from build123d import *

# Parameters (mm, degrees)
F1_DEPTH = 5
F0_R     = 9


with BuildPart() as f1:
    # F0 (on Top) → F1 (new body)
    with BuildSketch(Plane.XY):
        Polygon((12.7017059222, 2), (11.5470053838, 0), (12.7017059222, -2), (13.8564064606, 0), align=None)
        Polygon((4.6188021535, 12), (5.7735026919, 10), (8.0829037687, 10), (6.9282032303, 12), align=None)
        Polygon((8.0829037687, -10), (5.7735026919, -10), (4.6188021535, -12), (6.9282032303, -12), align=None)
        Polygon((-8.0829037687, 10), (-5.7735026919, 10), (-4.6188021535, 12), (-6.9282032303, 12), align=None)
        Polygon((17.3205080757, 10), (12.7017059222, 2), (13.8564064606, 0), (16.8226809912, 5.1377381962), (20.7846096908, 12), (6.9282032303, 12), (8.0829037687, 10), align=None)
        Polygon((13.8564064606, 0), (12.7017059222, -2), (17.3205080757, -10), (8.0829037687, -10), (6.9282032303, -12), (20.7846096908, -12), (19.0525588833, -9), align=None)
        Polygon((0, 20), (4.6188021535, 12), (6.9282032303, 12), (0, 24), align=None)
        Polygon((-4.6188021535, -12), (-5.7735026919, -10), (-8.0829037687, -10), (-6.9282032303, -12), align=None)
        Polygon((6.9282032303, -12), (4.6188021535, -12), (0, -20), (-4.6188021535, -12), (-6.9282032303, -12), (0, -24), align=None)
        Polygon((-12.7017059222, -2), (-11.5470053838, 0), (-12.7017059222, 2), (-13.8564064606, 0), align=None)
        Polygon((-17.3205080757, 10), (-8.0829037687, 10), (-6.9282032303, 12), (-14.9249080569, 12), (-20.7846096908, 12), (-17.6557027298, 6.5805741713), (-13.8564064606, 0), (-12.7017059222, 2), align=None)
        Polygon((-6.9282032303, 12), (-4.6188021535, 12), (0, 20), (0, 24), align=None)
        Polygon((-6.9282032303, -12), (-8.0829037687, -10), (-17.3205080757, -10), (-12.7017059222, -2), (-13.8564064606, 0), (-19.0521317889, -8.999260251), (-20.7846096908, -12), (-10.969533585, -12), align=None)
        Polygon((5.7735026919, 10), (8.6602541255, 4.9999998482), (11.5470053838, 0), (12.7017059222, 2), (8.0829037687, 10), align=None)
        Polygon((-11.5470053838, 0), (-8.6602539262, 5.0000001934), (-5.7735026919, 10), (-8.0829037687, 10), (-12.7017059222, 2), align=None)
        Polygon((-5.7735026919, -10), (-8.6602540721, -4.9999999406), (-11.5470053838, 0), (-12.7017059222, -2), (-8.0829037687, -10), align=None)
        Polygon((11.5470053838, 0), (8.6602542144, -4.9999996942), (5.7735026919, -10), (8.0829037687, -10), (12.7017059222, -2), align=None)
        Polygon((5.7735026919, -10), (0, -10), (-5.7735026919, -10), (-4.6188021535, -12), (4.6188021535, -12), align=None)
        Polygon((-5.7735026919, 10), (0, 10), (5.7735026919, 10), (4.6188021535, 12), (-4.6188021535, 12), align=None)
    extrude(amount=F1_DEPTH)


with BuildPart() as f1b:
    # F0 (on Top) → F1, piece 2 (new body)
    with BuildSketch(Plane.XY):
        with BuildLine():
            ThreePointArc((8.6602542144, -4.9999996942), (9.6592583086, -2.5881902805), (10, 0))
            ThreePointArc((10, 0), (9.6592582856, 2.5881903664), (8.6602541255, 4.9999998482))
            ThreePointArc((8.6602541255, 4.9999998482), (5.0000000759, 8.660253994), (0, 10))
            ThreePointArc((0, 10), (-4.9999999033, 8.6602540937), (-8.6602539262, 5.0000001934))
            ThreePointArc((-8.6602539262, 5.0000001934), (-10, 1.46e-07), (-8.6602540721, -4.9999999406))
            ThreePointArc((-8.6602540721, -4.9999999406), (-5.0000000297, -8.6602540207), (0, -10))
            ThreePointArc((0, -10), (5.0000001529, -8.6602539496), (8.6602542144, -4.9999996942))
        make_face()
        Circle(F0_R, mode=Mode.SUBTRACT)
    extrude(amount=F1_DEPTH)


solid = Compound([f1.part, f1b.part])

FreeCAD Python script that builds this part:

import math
import FreeCAD as App
import Part
import Sketcher

V = App.Vector
Q = App.Units.Quantity


def add_polygon(sketch, points):
    """Adds a closed chain of lines whose ends are joined by coincident constraints."""
    first, n = sketch.GeometryCount, len(points)
    for a, b in zip(points, points[1:] + points[:1]):
        sketch.addGeometry(Part.LineSegment(App.Vector(*a, 0), App.Vector(*b, 0)), False)
    for i in range(n):
        sketch.addConstraint(Sketcher.Constraint("Coincident", first + i, 2, first + (i + 1) % n, 1))

doc = App.newDocument("Part")
body = doc.addObject("PartDesign::Body", "Body")

sketch1 = body.newObject("Sketcher::SketchObject", "Sketch")
sketch1.AttachmentSupport = (doc.getObject("XY_Plane"), [""])
sketch1.MapMode = "FlatFace"
add_polygon(sketch1, [(-6.9, -12), (0, -24), (6.9, -12), (20.8, -12), (19.1, -9), (13.9, 0), (16.8, 5.1), (20.8, 12), (6.9, 12), (0, 24), (-6.9, 12), (-20.8, 12), (-17.7, 6.6), (-13.9, 0), (-19.1, -9), (-20.8, -12)])
add_polygon(sketch1, [(12.7, -2), (17.3, -10), (8.1, -10)])
add_polygon(sketch1, [(4.6, -12), (0, -20), (-4.6, -12)])
add_polygon(sketch1, [(-5.8, -10), (-8.7, -5), (-11.5, 0), (-8.7, 5), (-5.8, 10), (5.8, 10), (8.7, 5), (11.5, 0), (8.7, -5), (5.8, -10)])
add_polygon(sketch1, [(-4.6, 12), (0, 20), (4.6, 12)])
add_polygon(sketch1, [(-8.1, -10), (-17.3, -10), (-12.7, -2)])
add_polygon(sketch1, [(-12.7, 2), (-17.3, 10), (-8.1, 10)])
add_polygon(sketch1, [(8.1, 10), (17.3, 10), (12.7, 2)])
sketch1.addConstraint([
    Sketcher.Constraint("Horizontal", 2),
    Sketcher.Constraint("Horizontal", 7),
    Sketcher.Constraint("Horizontal", 10),
    Sketcher.Constraint("Horizontal", 15),
    Sketcher.Constraint("Horizontal", 17),
    Sketcher.Constraint("Horizontal", 21),
    Sketcher.Constraint("Horizontal", 26),
    Sketcher.Constraint("Horizontal", 31),
    Sketcher.Constraint("Horizontal", 34),
    Sketcher.Constraint("Horizontal", 35),
    Sketcher.Constraint("Horizontal", 39),
    Sketcher.Constraint("Horizontal", 41),
    Sketcher.Constraint("Symmetric", 0, 2, 8, 2, -1, 1),
    Sketcher.Constraint("Symmetric", 1, 2, 9, 2, -1, 1),
    Sketcher.Constraint("Symmetric", 4, 2, 12, 2, -1, 1),
    Sketcher.Constraint("Symmetric", 6, 2, 14, 2, -1, 1),
    Sketcher.Constraint("Symmetric", 22, 2, 27, 2, -1, 1),
    Sketcher.Constraint("Symmetric", 23, 2, 28, 2, -1, 1),
    Sketcher.Constraint("Symmetric", 24, 2, 29, 2, -1, 1),
    Sketcher.Constraint("Symmetric", 25, 2, 30, 2, -1, 1),
    Sketcher.Constraint("Symmetric", 19, 2, 32, 2, -1, 1),
    Sketcher.Constraint("Symmetric", 20, 2, 33, 2, -1, 1),
    Sketcher.Constraint("Symmetric", 16, 2, 38, 2, -1, 1),
    Sketcher.Constraint("Symmetric", 18, 2, 40, 2, -1, 1),
    Sketcher.Constraint("Symmetric", 35, 2, 41, 2, -1, 1),
    Sketcher.Constraint("Symmetric", 36, 2, 42, 2, -1, 1),
    Sketcher.Constraint("Symmetric", 7, 2, 9, 2, -2),
    Sketcher.Constraint("Symmetric", 24, 2, 27, 2, -2),
    Sketcher.Constraint("Symmetric", 16, 2, 35, 2, -2),
    Sketcher.Constraint("Symmetric", 18, 2, 36, 2, -2),
    Sketcher.Constraint("PointOnObject", 0, 2, -2),
    Sketcher.Constraint("PointOnObject", 4, 2, -1),
    Sketcher.Constraint("PointOnObject", 19, 2, -2),
    Sketcher.Constraint("PointOnObject", 23, 2, -1),
    Sketcher.Constraint("Parallel", 0, 3),
    Sketcher.Constraint("Parallel", 3, 4),
    Sketcher.Constraint("Parallel", 1, 5),
    Sketcher.Constraint("Parallel", 5, 6),
    Sketcher.Constraint("Parallel", 4, 8),
    Sketcher.Constraint("Parallel", 8, 11),
    Sketcher.Constraint("Parallel", 11, 12),
    Sketcher.Constraint("Parallel", 9, 13),
    Sketcher.Constraint("Parallel", 12, 16),
    Sketcher.Constraint("Parallel", 14, 18),
    Sketcher.Constraint("Parallel", 18, 19),
    Sketcher.Constraint("Parallel", 16, 20),
    Sketcher.Constraint("Parallel", 20, 22),
    Sketcher.Constraint("Parallel", 22, 23),
    Sketcher.Constraint("Parallel", 24, 25),
    Sketcher.Constraint("Parallel", 23, 27),
    Sketcher.Constraint("Parallel", 30, 32),
    Sketcher.Constraint("Parallel", 33, 37),
    Sketcher.Constraint("Parallel", 36, 40),
    Sketcher.Constraint("Parallel", 38, 43),
    Sketcher.Constraint("Horizontal", 15, 2, 20, 2),
    Sketcher.Constraint("Horizontal", 17, 2, 30, 2),
    Sketcher.Constraint("Equal", 17, 21),
    Sketcher.Constraint("Equal", 22, 23),
    Sketcher.Constraint("Angle", 0, Q("-60 deg")),
    Sketcher.Constraint("DistanceY", 0, 2, -1, 1, Q("24 mm")),
    Sketcher.Constraint("DistanceY", 1, 2, -1, 1, Q("12 mm")),
    Sketcher.Constraint("DistanceY", 3, 2, -1, 1, Q("9 mm")),
    Sketcher.Constraint("DistanceY", 16, 2, -1, 1, Q("10 mm")),
    Sketcher.Constraint("DistanceY", 18, 2, -1, 1, Q("2 mm")),
    Sketcher.Constraint("DistanceX", 11, 2, 9, 2, Q("10.7275 mm")),
    Sketcher.Constraint("DistanceX", 16, 2, 2, 2, Q("3.464102 mm")),
    Sketcher.Constraint("DistanceX", 1, 2, 17, 2, Q("1.154701 mm")),
    Sketcher.Constraint("DistanceX", 12, 2, 23, 2, Q("2.309401 mm")),
    Sketcher.Constraint("Distance", 5, Q("5.932549 mm")),
    Sketcher.Constraint("Distance", 13, Q("10.391451 mm")),
])
pad1 = body.newObject("PartDesign::Pad", "Pad")
pad1.Profile = sketch1
pad1.Length = 5
body2 = doc.addObject("PartDesign::Body", "Body001")

sketch2 = body2.newObject("Sketcher::SketchObject", "Sketch001")
sketch2.AttachmentSupport = (doc.getObject("XY_Plane001"), [""])
sketch2.MapMode = "FlatFace"
sketch2.addGeometry([
    Part.ArcOfCircle(Part.Circle(V(0, 0, 0), V(0, 0, 1), 10), math.radians(-30), math.radians(0)),
    Part.ArcOfCircle(Part.Circle(V(0, 0, 0), V(0, 0, 1), 10), math.radians(0), math.radians(30)),
    Part.ArcOfCircle(Part.Circle(V(0, 0, 0), V(0, 0, 1), 10), math.radians(30), math.radians(90)),
    Part.ArcOfCircle(Part.Circle(V(0, 0, 0), V(0, 0, 1), 10), math.radians(90), math.radians(150)),
    Part.ArcOfCircle(Part.Circle(V(0, 0, 0), V(0, 0, 1), 10), math.radians(150), math.radians(210)),
    Part.ArcOfCircle(Part.Circle(V(0, 0, 0), V(0, 0, 1), 10), math.radians(-150), math.radians(-90)),
    Part.ArcOfCircle(Part.Circle(V(0, 0, 0), V(0, 0, 1), 10), math.radians(-90), math.radians(-30)),
    Part.Circle(V(0, 0, 0), V(0, 0, 1), 9),
], False)
sketch2.addConstraint([
    Sketcher.Constraint("Tangent", 0, 2, 1, 1),
    Sketcher.Constraint("Tangent", 1, 2, 2, 1),
    Sketcher.Constraint("Tangent", 2, 2, 3, 1),
    Sketcher.Constraint("Tangent", 3, 2, 4, 1),
    Sketcher.Constraint("Tangent", 4, 2, 5, 1),
    Sketcher.Constraint("Tangent", 5, 2, 6, 1),
    Sketcher.Constraint("Tangent", 6, 2, 0, 1),
    Sketcher.Constraint("Coincident", 0, 3, -1, 1),
    Sketcher.Constraint("Coincident", 2, 3, -1, 1),
    Sketcher.Constraint("Coincident", 4, 3, -1, 1),
    Sketcher.Constraint("Coincident", 7, 3, -1, 1),
    Sketcher.Constraint("PointOnObject", 0, 2, -1),
    Sketcher.Constraint("PointOnObject", 2, 2, -2),
    Sketcher.Constraint("PointOnObject", 5, 2, -2),
    Sketcher.Constraint("Horizontal", 1, 2, 3, 2),
    Sketcher.Constraint("Horizontal", 4, 2, 6, 2),
    Sketcher.Constraint("Vertical", 3, 2, 4, 2),
    Sketcher.Constraint("Diameter", 7, Q("18 mm")),
    Sketcher.Constraint("Radius", 0, Q("10 mm")),
    Sketcher.Constraint("DistanceY", -1, 1, 1, 2, Q("5 mm")),
])
pad2 = body2.newObject("PartDesign::Pad", "Pad001")
pad2.Profile = sketch2
pad2.Length = 5

doc.recompute()
